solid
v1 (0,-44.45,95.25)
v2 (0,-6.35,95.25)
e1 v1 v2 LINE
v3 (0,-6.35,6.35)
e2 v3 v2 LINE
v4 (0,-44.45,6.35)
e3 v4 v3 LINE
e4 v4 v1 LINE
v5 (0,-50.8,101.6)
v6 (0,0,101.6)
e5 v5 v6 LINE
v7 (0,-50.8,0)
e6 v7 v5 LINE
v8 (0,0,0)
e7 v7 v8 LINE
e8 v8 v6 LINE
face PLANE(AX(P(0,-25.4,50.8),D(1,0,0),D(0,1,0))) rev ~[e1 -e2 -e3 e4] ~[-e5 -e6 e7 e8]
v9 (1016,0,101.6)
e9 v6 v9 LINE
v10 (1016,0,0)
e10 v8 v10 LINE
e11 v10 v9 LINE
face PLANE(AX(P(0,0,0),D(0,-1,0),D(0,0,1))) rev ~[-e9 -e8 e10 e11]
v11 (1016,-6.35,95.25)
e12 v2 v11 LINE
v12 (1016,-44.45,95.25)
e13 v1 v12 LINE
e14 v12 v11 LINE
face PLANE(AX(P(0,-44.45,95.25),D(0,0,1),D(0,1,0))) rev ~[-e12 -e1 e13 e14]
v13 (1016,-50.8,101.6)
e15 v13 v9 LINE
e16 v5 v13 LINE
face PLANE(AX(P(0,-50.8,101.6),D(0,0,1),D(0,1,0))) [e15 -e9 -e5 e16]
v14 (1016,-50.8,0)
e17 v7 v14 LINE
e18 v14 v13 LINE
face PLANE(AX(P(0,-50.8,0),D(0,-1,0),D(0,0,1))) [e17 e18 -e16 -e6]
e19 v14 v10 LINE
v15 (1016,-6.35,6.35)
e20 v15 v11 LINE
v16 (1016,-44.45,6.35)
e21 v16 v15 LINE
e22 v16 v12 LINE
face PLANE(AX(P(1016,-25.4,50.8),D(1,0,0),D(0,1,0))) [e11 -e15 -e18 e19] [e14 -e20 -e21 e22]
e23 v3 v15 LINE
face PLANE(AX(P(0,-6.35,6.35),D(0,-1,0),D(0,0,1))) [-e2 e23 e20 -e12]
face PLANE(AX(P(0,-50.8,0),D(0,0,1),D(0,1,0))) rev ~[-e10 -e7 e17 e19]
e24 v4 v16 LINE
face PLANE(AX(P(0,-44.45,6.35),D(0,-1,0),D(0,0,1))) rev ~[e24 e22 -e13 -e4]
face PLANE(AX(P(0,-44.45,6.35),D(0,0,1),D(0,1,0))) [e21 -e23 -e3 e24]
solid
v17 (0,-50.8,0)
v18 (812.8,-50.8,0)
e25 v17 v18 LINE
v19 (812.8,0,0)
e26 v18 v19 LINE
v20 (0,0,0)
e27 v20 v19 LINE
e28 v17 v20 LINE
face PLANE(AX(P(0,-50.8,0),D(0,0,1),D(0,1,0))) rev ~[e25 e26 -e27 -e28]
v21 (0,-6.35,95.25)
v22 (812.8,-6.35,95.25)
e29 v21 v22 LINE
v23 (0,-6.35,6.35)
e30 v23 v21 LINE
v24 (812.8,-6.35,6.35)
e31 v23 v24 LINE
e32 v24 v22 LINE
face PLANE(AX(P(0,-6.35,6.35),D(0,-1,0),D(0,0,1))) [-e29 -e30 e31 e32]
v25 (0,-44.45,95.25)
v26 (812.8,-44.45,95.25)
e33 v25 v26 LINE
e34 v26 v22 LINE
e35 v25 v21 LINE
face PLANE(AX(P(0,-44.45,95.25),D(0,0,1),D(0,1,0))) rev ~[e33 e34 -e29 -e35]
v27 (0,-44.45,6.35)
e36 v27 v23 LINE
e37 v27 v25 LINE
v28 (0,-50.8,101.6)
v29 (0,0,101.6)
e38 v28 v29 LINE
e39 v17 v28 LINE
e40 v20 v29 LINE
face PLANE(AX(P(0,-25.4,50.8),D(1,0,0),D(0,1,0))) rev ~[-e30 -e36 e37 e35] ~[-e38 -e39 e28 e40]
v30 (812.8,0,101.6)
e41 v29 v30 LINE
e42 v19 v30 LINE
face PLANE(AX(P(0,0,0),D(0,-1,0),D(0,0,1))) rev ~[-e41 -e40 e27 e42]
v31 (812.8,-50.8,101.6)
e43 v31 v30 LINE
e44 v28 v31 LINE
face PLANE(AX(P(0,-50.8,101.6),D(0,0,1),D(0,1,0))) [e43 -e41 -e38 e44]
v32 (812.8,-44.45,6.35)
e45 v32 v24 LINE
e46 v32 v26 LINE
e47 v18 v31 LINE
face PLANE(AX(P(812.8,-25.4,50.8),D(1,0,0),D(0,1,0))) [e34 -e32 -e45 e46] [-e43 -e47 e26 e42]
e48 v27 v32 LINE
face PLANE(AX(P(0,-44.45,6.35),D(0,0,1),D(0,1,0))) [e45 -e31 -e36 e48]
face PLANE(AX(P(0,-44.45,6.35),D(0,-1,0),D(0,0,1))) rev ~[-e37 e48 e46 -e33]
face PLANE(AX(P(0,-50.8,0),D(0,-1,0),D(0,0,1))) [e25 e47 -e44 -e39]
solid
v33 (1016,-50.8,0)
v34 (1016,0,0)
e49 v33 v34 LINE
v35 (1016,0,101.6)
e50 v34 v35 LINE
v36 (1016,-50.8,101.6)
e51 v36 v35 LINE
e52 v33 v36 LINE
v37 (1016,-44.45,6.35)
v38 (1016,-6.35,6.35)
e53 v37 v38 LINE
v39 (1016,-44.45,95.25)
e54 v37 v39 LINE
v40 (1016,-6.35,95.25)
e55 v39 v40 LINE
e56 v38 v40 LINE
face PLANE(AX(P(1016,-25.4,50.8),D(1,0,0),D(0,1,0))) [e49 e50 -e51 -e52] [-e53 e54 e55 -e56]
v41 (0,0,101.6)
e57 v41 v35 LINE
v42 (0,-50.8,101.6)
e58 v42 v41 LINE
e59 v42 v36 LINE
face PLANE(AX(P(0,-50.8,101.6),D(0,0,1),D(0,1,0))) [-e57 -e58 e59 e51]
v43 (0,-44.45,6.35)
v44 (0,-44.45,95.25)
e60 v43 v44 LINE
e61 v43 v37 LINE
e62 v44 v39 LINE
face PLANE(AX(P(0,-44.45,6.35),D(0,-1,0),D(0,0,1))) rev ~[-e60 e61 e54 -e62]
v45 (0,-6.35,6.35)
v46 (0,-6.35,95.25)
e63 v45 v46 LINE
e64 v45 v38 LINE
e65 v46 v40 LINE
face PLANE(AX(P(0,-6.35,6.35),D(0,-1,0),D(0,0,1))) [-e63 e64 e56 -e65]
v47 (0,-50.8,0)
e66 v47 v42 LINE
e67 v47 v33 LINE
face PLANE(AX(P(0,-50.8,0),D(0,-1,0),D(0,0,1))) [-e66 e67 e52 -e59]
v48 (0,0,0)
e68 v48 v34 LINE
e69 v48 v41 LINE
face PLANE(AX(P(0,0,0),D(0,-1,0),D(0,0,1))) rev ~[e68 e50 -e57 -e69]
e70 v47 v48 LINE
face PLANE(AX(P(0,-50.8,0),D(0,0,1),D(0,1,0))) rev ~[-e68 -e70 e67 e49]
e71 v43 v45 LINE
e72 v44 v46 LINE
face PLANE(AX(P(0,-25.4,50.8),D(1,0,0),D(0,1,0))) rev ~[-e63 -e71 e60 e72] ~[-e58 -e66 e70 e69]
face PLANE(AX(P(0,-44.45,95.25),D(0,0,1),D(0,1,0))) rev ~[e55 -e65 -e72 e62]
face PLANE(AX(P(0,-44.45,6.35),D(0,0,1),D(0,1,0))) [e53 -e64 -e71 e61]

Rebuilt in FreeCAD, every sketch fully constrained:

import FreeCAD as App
import Part
import Sketcher

V = App.Vector
Q = App.Units.Quantity


def add_polygon(sketch, points):
    """Adds a closed chain of lines whose ends are joined by coincident constraints."""
    first, n = sketch.GeometryCount, len(points)
    for a, b in zip(points, points[1:] + points[:1]):
        sketch.addGeometry(Part.LineSegment(App.Vector(*a, 0), App.Vector(*b, 0)), False)
    for i in range(n):
        sketch.addConstraint(Sketcher.Constraint("Coincident", first + i, 2, first + (i + 1) % n, 1))

doc = App.newDocument("Part")
params = doc.addObject("Spreadsheet::Sheet", "Params")
for row, (alias, value) in enumerate([
    ("sketch1_width", "2 in"),
    ("sketch1_height", "4 in"),
    ("sketch1_width2", "1.5 in"),
    ("sketch1_height2", "3.5 in"),
    ("pad1_length", "32 in"),
    ("sketch2_width", "2 in"),
    ("sketch2_height", "4 in"),
    ("sketch2_width2", "1.5 in"),
    ("sketch2_height2", "3.5 in"),
    ("pad2_length", "40 in"),
    ("sketch3_width", "2 in"),
    ("sketch3_height", "4 in"),
    ("sketch3_width2", "1.5 in"),
    ("sketch3_height2", "3.5 in"),
    ("pad3_length", "40 in"),
], start=1):
    params.set(f"A{row}", alias)
    params.set(f"B{row}", "=" + value)
    params.setAlias(f"B{row}", alias)

body = doc.addObject("PartDesign::Body", "Body")

sketch1 = doc.addObject("Sketcher::SketchObject", "Sketch")
body.addObject(sketch1)
sketch1.AttachmentSupport = (doc.YZ_Plane, [""])
sketch1.MapMode = "FlatFace"
add_polygon(sketch1, [(-51, 102), (-51, 0), (0, 0), (0, 102)])
add_polygon(sketch1, [(-6, 6), (-44, 6), (-44, 95), (-6, 95)])
sketch1.addConstraint(Sketcher.Constraint("Vertical", 0))
sketch1.addConstraint(Sketcher.Constraint("Horizontal", 1))
sketch1.addConstraint(Sketcher.Constraint("Vertical", 2))
sketch1.addConstraint(Sketcher.Constraint("Horizontal", 3))
sketch1.addConstraint(Sketcher.Constraint("Horizontal", 4))
sketch1.addConstraint(Sketcher.Constraint("Vertical", 5))
sketch1.addConstraint(Sketcher.Constraint("Horizontal", 6))
sketch1.addConstraint(Sketcher.Constraint("Vertical", 7))
sketch1.addConstraint(Sketcher.Constraint("Coincident", 1, 2, -1, 1))
sketch1.addConstraint(Sketcher.Constraint("DistanceX", 1, 1, 1, 2, Q("2 in")))
sketch1.addConstraint(Sketcher.Constraint("DistanceY", 0, 2, 0, 1, Q("4 in")))
sketch1.addConstraint(Sketcher.Constraint("DistanceX", 4, 2, 4, 1, Q("1.5 in")))
sketch1.addConstraint(Sketcher.Constraint("DistanceY", 5, 1, 5, 2, Q("3.5 in")))
sketch1.addConstraint(Sketcher.Constraint("DistanceX", 4, 2, -1, 1, Q("1.75 in")))
sketch1.addConstraint(Sketcher.Constraint("DistanceY", -1, 1, 4, 2, Q("0.25 in")))
sketch1.setExpression("Constraints[17]", "Params.sketch1_width")
sketch1.setExpression("Constraints[18]", "Params.sketch1_height")
sketch1.setExpression("Constraints[19]", "Params.sketch1_width2")
sketch1.setExpression("Constraints[20]", "Params.sketch1_height2")
pad1 = doc.addObject("PartDesign::Pad", "Pad")
body.addObject(pad1)
pad1.Profile = sketch1
pad1.setExpression("Length", "Params.pad1_length")
body2 = doc.addObject("PartDesign::Body", "Body001")

sketch2 = doc.addObject("Sketcher::SketchObject", "Sketch001")
body2.addObject(sketch2)
sketch2.AttachmentSupport = (doc.getObject("YZ_Plane001"), [""])
sketch2.MapMode = "FlatFace"
add_polygon(sketch2, [(-51, 102), (-51, 0), (0, 0), (0, 102)])
add_polygon(sketch2, [(-6, 6), (-44, 6), (-44, 95), (-6, 95)])
sketch2.addConstraint(Sketcher.Constraint("Vertical", 0))
sketch2.addConstraint(Sketcher.Constraint("Horizontal", 1))
sketch2.addConstraint(Sketcher.Constraint("Vertical", 2))
sketch2.addConstraint(Sketcher.Constraint("Horizontal", 3))
sketch2.addConstraint(Sketcher.Constraint("Horizontal", 4))
sketch2.addConstraint(Sketcher.Constraint("Vertical", 5))
sketch2.addConstraint(Sketcher.Constraint("Horizontal", 6))
sketch2.addConstraint(Sketcher.Constraint("Vertical", 7))
sketch2.addConstraint(Sketcher.Constraint("Coincident", 1, 2, -1, 1))
sketch2.addConstraint(Sketcher.Constraint("DistanceX", 1, 1, 1, 2, Q("2 in")))
sketch2.addConstraint(Sketcher.Constraint("DistanceY", 0, 2, 0, 1, Q("4 in")))
sketch2.addConstraint(Sketcher.Constraint("DistanceX", 4, 2, 4, 1, Q("1.5 in")))
sketch2.addConstraint(Sketcher.Constraint("DistanceY", 5, 1, 5, 2, Q("3.5 in")))
sketch2.addConstraint(Sketcher.Constraint("DistanceX", 4, 2, -1, 1, Q("1.75 in")))
sketch2.addConstraint(Sketcher.Constraint("DistanceY", -1, 1, 4, 2, Q("0.25 in")))
sketch2.setExpression("Constraints[17]", "Params.sketch2_width")
sketch2.setExpression("Constraints[18]", "Params.sketch2_height")
sketch2.setExpression("Constraints[19]", "Params.sketch2_width2")
sketch2.setExpression("Constraints[20]", "Params.sketch2_height2")
pad2 = doc.addObject("PartDesign::Pad", "Pad001")
body2.addObject(pad2)
pad2.Profile = sketch2
pad2.setExpression("Length", "Params.pad2_length")
body3 = doc.addObject("PartDesign::Body", "Body002")

sketch3 = doc.addObject("Sketcher::SketchObject", "Sketch002")
body3.addObject(sketch3)
sketch3.AttachmentSupport = (doc.getObject("YZ_Plane002"), [""])
sketch3.MapMode = "FlatFace"
add_polygon(sketch3, [(-51, 102), (-51, 0), (0, 0), (0, 102)])
add_polygon(sketch3, [(-6, 6), (-44, 6), (-44, 95), (-6, 95)])
sketch3.addConstraint(Sketcher.Constraint("Vertical", 0))
sketch3.addConstraint(Sketcher.Constraint("Horizontal", 1))
sketch3.addConstraint(Sketcher.Constraint("Vertical", 2))
sketch3.addConstraint(Sketcher.Constraint("Horizontal", 3))
sketch3.addConstraint(Sketcher.Constraint("Horizontal", 4))
sketch3.addConstraint(Sketcher.Constraint("Vertical", 5))
sketch3.addConstraint(Sketcher.Constraint("Horizontal", 6))
sketch3.addConstraint(Sketcher.Constraint("Vertical", 7))
sketch3.addConstraint(Sketcher.Constraint("Coincident", 1, 2, -1, 1))
sketch3.addConstraint(Sketcher.Constraint("DistanceX", 1, 1, 1, 2, Q("2 in")))
sketch3.addConstraint(Sketcher.Constraint("DistanceY", 0, 2, 0, 1, Q("4 in")))
sketch3.addConstraint(Sketcher.Constraint("DistanceX", 4, 2, 4, 1, Q("1.5 in")))
sketch3.addConstraint(Sketcher.Constraint("DistanceY", 5, 1, 5, 2, Q("3.5 in")))
sketch3.addConstraint(Sketcher.Constraint("DistanceX", 4, 2, -1, 1, Q("1.75 in")))
sketch3.addConstraint(Sketcher.Constraint("DistanceY", -1, 1, 4, 2, Q("0.25 in")))
sketch3.setExpression("Constraints[17]", "Params.sketch3_width")
sketch3.setExpression("Constraints[18]", "Params.sketch3_height")
sketch3.setExpression("Constraints[19]", "Params.sketch3_width2")
sketch3.setExpression("Constraints[20]", "Params.sketch3_height2")
pad3 = doc.addObject("PartDesign::Pad", "Pad002")
body3.addObject(pad3)
pad3.Profile = sketch3
pad3.setExpression("Length", "Params.pad3_length")

doc.recompute()
